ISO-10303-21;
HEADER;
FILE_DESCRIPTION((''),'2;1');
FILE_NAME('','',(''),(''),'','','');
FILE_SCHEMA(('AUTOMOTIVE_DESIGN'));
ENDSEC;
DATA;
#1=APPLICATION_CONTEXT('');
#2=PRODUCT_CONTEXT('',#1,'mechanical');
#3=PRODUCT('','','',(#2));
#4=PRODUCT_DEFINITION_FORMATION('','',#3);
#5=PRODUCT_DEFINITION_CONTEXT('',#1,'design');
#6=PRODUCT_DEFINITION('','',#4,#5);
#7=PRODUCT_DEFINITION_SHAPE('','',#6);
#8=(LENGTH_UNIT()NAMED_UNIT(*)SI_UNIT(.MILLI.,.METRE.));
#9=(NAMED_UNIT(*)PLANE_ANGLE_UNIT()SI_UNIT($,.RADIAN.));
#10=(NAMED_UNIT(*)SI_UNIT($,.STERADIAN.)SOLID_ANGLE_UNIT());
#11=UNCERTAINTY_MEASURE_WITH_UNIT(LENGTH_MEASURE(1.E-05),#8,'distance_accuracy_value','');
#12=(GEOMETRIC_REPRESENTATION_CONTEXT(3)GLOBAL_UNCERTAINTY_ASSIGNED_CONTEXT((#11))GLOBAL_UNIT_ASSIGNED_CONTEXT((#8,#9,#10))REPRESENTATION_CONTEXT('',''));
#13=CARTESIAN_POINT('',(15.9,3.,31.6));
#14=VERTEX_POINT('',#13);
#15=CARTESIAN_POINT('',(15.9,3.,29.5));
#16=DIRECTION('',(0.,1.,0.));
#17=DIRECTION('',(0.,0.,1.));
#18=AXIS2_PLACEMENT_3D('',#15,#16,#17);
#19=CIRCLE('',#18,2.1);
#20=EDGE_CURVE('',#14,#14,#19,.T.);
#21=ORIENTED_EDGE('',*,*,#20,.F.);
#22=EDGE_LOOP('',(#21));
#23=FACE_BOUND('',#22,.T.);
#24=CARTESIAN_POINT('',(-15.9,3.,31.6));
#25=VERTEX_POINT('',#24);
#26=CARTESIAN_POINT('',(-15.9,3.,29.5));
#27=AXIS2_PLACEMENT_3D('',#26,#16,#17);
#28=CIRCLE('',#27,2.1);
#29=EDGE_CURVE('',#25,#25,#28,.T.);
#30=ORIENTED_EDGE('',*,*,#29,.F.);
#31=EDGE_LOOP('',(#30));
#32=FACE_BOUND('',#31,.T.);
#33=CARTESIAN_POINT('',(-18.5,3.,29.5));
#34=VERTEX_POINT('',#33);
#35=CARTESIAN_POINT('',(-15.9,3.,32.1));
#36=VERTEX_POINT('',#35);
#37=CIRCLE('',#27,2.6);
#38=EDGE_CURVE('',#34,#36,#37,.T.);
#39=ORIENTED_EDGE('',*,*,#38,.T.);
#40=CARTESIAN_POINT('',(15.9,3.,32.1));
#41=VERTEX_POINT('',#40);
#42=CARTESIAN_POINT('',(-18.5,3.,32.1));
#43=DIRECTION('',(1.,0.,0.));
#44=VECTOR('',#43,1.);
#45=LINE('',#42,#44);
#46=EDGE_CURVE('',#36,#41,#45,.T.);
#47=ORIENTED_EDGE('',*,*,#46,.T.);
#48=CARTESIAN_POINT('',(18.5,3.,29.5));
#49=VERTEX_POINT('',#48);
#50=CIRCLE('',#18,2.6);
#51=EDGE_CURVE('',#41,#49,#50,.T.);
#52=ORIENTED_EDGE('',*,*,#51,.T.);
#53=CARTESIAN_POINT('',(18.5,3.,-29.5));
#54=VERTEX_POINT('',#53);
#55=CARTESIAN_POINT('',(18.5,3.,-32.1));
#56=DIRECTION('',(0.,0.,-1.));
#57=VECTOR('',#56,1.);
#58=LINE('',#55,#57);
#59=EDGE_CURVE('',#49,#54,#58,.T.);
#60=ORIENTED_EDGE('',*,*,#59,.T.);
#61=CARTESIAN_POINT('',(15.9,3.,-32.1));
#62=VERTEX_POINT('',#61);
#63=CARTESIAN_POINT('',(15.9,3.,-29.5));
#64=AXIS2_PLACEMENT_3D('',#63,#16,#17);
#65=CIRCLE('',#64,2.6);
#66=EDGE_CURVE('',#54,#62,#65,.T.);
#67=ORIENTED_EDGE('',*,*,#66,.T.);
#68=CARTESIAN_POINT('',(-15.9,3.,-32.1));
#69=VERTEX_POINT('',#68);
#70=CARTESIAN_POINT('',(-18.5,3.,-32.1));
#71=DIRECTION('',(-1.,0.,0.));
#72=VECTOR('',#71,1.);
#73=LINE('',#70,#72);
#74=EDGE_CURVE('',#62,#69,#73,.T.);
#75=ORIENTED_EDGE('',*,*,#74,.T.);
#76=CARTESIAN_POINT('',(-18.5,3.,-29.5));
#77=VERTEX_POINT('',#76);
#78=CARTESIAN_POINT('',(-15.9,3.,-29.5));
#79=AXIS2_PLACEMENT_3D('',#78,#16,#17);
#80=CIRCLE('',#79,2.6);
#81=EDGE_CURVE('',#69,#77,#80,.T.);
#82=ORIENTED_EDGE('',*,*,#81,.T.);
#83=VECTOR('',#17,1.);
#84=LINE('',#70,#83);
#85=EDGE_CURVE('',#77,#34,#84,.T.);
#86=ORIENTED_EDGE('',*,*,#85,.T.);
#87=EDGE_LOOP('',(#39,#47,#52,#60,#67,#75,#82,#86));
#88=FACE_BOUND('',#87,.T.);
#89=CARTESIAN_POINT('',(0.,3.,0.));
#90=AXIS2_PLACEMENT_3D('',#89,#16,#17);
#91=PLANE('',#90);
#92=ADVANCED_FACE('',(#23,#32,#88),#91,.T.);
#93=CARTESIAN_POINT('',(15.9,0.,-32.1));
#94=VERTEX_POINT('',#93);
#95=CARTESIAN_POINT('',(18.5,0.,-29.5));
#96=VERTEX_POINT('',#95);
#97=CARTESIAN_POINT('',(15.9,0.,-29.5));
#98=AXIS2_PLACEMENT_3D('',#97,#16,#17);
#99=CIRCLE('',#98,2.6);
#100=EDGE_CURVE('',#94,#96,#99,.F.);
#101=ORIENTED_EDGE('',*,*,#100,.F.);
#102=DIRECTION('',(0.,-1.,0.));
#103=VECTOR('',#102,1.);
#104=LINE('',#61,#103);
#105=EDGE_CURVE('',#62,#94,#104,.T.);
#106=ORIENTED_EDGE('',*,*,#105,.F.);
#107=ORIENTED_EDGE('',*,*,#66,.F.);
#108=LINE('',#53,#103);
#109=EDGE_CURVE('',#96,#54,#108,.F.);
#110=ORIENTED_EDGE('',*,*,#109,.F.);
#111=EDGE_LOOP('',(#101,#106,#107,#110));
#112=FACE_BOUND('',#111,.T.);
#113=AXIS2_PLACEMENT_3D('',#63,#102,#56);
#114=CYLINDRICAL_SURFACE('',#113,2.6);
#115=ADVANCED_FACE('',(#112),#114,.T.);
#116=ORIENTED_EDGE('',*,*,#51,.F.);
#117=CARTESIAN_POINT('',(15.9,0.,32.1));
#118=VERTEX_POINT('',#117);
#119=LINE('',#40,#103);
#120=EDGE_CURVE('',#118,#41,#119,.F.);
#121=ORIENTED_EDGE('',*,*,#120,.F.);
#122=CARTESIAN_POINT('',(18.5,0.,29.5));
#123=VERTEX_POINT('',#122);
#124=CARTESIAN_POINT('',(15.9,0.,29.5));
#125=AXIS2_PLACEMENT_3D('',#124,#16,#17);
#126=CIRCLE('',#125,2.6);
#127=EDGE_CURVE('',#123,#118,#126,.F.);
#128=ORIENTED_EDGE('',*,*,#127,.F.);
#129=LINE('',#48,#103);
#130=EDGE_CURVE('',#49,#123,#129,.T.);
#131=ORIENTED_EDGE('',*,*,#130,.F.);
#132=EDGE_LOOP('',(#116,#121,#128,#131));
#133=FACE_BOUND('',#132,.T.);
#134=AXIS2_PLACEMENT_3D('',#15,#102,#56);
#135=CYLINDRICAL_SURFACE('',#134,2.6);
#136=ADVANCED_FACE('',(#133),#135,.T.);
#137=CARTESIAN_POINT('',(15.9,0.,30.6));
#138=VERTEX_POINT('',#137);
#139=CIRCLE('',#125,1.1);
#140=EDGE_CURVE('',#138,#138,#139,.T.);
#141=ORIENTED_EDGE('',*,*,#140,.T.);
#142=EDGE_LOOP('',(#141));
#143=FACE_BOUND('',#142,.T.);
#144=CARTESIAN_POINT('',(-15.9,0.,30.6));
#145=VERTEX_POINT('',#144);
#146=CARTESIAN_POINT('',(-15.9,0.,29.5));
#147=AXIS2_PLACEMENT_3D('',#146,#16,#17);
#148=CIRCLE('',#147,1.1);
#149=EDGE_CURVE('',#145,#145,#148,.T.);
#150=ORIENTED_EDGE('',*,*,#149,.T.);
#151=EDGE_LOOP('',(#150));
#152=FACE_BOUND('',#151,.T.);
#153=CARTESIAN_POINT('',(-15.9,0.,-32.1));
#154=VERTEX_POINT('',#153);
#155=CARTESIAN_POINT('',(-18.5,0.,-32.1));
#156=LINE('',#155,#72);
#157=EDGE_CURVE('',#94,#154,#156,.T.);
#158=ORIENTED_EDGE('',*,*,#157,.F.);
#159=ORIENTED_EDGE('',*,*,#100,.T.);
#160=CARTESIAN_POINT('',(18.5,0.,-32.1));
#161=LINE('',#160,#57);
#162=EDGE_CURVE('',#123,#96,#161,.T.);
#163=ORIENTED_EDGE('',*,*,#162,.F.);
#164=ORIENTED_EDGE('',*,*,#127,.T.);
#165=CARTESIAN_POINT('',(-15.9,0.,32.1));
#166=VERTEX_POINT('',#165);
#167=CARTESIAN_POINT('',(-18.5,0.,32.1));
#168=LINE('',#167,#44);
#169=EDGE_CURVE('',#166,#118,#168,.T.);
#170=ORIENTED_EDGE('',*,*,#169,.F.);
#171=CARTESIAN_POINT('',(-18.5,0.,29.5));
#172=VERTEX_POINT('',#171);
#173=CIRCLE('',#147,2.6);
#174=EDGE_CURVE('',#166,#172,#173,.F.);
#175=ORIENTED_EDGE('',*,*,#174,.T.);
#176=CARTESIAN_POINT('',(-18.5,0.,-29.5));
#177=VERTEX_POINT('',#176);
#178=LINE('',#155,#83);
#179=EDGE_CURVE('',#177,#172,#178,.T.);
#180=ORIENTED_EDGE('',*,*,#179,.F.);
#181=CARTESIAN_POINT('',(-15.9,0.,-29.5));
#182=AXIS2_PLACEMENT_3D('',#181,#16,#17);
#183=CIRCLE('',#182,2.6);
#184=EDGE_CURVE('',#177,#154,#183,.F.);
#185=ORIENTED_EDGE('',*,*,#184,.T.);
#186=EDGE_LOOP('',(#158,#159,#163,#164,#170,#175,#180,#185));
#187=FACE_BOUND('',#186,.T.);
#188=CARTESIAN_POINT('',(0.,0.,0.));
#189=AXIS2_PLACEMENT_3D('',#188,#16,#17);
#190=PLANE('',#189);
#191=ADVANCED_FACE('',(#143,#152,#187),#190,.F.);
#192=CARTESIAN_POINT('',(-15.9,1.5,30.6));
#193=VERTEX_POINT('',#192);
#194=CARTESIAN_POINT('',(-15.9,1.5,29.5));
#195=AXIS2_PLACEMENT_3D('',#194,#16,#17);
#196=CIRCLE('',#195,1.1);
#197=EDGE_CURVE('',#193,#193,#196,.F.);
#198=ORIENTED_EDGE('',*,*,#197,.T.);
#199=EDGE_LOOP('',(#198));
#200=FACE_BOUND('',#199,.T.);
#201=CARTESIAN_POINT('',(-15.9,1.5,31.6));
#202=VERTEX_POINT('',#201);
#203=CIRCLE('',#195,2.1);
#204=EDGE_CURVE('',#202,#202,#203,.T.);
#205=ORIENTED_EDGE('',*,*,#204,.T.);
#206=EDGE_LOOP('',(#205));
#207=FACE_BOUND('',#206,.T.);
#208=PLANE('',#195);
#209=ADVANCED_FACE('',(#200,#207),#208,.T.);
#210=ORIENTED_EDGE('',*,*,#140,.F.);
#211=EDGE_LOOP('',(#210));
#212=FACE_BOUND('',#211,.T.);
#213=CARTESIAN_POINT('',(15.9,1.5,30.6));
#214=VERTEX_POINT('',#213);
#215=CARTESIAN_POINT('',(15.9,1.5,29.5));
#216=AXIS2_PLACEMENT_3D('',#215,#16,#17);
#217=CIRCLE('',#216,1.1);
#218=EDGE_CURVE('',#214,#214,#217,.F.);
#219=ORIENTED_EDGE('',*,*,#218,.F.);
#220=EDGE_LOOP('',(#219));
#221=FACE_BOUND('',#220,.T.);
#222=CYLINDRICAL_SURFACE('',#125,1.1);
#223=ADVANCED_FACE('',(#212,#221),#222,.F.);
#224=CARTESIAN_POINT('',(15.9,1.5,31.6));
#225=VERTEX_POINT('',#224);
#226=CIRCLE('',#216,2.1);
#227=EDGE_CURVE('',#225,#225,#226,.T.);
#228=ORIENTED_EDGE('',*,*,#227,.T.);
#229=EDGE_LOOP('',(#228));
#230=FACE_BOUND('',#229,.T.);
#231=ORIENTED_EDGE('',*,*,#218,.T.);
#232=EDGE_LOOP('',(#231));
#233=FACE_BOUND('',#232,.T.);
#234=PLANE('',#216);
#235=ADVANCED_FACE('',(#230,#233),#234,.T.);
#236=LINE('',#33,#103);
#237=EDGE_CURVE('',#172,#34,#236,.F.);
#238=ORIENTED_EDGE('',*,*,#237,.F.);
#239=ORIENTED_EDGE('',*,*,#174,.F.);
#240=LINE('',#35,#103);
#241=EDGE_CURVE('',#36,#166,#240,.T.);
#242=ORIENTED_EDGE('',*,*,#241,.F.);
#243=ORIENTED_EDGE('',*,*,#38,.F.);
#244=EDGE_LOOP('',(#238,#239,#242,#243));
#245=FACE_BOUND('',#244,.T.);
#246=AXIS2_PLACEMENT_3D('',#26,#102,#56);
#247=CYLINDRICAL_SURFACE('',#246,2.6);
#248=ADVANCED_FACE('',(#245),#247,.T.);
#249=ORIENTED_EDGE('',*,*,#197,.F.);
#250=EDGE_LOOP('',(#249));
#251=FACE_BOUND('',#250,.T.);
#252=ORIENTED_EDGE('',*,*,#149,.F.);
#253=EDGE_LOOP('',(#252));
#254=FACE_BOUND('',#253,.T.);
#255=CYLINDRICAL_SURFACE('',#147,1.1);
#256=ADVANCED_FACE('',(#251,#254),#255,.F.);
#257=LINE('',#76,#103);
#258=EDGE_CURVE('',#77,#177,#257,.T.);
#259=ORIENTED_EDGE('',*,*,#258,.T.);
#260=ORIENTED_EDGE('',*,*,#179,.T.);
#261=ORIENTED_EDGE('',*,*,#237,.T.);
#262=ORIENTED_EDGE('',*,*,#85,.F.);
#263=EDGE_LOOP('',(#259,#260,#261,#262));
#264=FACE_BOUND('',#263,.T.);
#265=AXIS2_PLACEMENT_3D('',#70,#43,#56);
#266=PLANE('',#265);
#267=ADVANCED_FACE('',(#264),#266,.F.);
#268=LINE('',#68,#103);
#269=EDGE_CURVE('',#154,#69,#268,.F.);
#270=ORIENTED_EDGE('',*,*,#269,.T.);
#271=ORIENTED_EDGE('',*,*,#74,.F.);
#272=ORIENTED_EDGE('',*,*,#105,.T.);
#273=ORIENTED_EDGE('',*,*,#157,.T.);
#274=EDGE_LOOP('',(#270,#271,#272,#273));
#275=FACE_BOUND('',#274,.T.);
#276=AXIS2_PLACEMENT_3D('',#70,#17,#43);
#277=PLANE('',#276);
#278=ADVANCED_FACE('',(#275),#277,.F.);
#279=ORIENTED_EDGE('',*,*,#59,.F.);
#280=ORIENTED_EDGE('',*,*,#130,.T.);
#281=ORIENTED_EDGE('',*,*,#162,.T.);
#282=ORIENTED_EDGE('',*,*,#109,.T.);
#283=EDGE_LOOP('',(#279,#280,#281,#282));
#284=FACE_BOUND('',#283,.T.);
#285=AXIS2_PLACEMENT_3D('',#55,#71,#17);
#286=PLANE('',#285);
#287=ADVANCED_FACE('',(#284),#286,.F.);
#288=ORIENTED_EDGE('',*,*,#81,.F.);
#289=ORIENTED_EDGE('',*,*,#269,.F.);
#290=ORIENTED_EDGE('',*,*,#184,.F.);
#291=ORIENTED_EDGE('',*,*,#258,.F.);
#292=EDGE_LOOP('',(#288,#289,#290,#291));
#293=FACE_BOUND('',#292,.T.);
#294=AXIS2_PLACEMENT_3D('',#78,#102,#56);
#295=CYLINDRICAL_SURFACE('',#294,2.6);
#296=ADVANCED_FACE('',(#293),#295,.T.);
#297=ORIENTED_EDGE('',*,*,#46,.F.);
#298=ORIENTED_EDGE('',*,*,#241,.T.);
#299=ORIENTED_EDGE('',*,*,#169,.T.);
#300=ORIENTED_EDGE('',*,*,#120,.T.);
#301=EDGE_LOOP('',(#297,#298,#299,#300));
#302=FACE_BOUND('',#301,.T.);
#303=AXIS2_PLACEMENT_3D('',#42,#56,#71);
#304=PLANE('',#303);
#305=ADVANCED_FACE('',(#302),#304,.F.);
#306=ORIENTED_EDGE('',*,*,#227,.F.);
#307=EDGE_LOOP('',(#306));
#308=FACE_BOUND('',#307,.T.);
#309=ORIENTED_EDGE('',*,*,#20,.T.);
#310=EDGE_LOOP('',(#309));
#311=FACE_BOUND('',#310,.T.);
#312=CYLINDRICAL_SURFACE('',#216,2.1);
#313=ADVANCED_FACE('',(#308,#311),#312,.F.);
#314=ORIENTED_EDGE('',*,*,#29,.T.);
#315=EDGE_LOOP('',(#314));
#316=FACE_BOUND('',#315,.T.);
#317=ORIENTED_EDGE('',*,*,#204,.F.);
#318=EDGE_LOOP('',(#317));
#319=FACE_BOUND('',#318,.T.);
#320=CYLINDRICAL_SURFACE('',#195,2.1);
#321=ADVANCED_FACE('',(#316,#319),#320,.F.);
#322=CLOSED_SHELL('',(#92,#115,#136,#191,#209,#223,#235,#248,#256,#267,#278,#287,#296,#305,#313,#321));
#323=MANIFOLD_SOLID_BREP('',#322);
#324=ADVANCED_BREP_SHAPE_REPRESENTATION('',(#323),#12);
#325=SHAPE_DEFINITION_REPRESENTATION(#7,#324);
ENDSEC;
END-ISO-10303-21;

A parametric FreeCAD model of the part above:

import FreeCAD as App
import Part
import Sketcher
from FreeCAD import Vector


def edges_at(feature, points):
    """Names of the edges that pass closest to the given points."""
    edges = feature.Shape.Edges
    near = lambda p: min(range(len(edges)), key=lambda i: edges[i].distToShape(Part.Vertex(*p))[0])
    return sorted({f"Edge{near(p) + 1}" for p in points})

doc = App.newDocument("Part")
body = doc.addObject("PartDesign::Body", "Body")

sketch1 = body.newObject("Sketcher::SketchObject", "Sketch")
sketch1.AttachmentSupport = (doc.getObject("XZ_Plane"), [""])
sketch1.MapMode = "FlatFace"
sketch1.addGeometry([
    Part.LineSegment(Vector(-18, -32, 0), Vector(-18, 32, 0)),
    Part.LineSegment(Vector(-18, 32, 0), Vector(18, 32, 0)),
    Part.LineSegment(Vector(18, 32, 0), Vector(18, -32, 0)),
    Part.LineSegment(Vector(18, -32, 0), Vector(-18, -32, 0)),
], False)
sketch1.addConstraint([
    Sketcher.Constraint("Coincident", 0, 2, 1, 1),
    Sketcher.Constraint("Coincident", 1, 2, 2, 1),
    Sketcher.Constraint("Coincident", 2, 2, 3, 1),
    Sketcher.Constraint("Coincident", 3, 2, 0, 1),
    Sketcher.Constraint("Vertical", 0),
    Sketcher.Constraint("Horizontal", 1),
    Sketcher.Constraint("Vertical", 2),
    Sketcher.Constraint("Horizontal", 3),
    Sketcher.Constraint("Symmetric", 0, 2, 2, 2, -1, 1),
    Sketcher.Constraint("DistanceX", 1, 1, 1, 2, 37.0),
    Sketcher.Constraint("DistanceY", 0, 1, 0, 2, 64.2),
])
pad1 = body.newObject("PartDesign::Pad", "Pad")
pad1.Profile = sketch1
pad1.Length = 3
pad1.Reversed = True
doc.recompute()

fillet = body.newObject("PartDesign::Fillet", "Fillet")
fillet.Base = (pad1, edges_at(pad1, [
    (18.5, 1.5, 32.1),
    (-18.5, 1.5, 32.1),
    (-18.5, 1.5, -32.1),
    (18.5, 1.5, -32.1),
]))
fillet.Radius = 2.6

sketch2 = body.newObject("Sketcher::SketchObject", "Sketch001")
sketch2.AttachmentSupport = (doc.getObject("XZ_Plane"), [""])
sketch2.MapMode = "FlatFace"
sketch2.AttachmentOffset = App.Placement(Vector(0, 0, -3), App.Rotation())
sketch2.addGeometry([
    Part.Circle(Vector(15.9, 29.5, 0), Vector(0, 0, 1), 1.1),
    Part.Circle(Vector(-15.9, 29.5, 0), Vector(0, 0, 1), 1.1),
], False)
sketch2.addConstraint([
    Sketcher.Constraint("Equal", 0, 1),
    Sketcher.Constraint("Symmetric", 0, 3, 1, 3, -2),
    Sketcher.Constraint("Diameter", 0, 2.2),
    Sketcher.Constraint("DistanceX", -1, 1, 0, 3, 15.9),
    Sketcher.Constraint("DistanceY", -1, 1, 0, 3, 29.5),
])
pocket1 = body.newObject("PartDesign::Pocket", "Pocket")
pocket1.Profile = sketch2
pocket1.Type = "ThroughAll"
pocket1.Reversed = True

sketch3 = body.newObject("Sketcher::SketchObject", "Sketch002")
sketch3.AttachmentSupport = (doc.getObject("XZ_Plane"), [""])
sketch3.MapMode = "FlatFace"
sketch3.AttachmentOffset = App.Placement(Vector(0, 0, -3), App.Rotation())
sketch3.addGeometry([
    Part.Circle(Vector(-15.9, 29.5, 0), Vector(0, 0, 1), 2.1),
    Part.Circle(Vector(15.9, 29.5, 0), Vector(0, 0, 1), 2.1),
], False)
sketch3.addConstraint([
    Sketcher.Constraint("Equal", 0, 1),
    Sketcher.Constraint("Symmetric", 0, 3, 1, 3, -2),
    Sketcher.Constraint("Diameter", 0, 4.2),
    Sketcher.Constraint("DistanceX", 0, 3, -1, 1, 15.9),
    Sketcher.Constraint("DistanceY", -1, 1, 0, 3, 29.5),
])
pocket2 = body.newObject("PartDesign::Pocket", "Pocket001")
pocket2.Profile = sketch3
pocket2.Length = 1.5
pocket2.Reversed = True

doc.recompute()
